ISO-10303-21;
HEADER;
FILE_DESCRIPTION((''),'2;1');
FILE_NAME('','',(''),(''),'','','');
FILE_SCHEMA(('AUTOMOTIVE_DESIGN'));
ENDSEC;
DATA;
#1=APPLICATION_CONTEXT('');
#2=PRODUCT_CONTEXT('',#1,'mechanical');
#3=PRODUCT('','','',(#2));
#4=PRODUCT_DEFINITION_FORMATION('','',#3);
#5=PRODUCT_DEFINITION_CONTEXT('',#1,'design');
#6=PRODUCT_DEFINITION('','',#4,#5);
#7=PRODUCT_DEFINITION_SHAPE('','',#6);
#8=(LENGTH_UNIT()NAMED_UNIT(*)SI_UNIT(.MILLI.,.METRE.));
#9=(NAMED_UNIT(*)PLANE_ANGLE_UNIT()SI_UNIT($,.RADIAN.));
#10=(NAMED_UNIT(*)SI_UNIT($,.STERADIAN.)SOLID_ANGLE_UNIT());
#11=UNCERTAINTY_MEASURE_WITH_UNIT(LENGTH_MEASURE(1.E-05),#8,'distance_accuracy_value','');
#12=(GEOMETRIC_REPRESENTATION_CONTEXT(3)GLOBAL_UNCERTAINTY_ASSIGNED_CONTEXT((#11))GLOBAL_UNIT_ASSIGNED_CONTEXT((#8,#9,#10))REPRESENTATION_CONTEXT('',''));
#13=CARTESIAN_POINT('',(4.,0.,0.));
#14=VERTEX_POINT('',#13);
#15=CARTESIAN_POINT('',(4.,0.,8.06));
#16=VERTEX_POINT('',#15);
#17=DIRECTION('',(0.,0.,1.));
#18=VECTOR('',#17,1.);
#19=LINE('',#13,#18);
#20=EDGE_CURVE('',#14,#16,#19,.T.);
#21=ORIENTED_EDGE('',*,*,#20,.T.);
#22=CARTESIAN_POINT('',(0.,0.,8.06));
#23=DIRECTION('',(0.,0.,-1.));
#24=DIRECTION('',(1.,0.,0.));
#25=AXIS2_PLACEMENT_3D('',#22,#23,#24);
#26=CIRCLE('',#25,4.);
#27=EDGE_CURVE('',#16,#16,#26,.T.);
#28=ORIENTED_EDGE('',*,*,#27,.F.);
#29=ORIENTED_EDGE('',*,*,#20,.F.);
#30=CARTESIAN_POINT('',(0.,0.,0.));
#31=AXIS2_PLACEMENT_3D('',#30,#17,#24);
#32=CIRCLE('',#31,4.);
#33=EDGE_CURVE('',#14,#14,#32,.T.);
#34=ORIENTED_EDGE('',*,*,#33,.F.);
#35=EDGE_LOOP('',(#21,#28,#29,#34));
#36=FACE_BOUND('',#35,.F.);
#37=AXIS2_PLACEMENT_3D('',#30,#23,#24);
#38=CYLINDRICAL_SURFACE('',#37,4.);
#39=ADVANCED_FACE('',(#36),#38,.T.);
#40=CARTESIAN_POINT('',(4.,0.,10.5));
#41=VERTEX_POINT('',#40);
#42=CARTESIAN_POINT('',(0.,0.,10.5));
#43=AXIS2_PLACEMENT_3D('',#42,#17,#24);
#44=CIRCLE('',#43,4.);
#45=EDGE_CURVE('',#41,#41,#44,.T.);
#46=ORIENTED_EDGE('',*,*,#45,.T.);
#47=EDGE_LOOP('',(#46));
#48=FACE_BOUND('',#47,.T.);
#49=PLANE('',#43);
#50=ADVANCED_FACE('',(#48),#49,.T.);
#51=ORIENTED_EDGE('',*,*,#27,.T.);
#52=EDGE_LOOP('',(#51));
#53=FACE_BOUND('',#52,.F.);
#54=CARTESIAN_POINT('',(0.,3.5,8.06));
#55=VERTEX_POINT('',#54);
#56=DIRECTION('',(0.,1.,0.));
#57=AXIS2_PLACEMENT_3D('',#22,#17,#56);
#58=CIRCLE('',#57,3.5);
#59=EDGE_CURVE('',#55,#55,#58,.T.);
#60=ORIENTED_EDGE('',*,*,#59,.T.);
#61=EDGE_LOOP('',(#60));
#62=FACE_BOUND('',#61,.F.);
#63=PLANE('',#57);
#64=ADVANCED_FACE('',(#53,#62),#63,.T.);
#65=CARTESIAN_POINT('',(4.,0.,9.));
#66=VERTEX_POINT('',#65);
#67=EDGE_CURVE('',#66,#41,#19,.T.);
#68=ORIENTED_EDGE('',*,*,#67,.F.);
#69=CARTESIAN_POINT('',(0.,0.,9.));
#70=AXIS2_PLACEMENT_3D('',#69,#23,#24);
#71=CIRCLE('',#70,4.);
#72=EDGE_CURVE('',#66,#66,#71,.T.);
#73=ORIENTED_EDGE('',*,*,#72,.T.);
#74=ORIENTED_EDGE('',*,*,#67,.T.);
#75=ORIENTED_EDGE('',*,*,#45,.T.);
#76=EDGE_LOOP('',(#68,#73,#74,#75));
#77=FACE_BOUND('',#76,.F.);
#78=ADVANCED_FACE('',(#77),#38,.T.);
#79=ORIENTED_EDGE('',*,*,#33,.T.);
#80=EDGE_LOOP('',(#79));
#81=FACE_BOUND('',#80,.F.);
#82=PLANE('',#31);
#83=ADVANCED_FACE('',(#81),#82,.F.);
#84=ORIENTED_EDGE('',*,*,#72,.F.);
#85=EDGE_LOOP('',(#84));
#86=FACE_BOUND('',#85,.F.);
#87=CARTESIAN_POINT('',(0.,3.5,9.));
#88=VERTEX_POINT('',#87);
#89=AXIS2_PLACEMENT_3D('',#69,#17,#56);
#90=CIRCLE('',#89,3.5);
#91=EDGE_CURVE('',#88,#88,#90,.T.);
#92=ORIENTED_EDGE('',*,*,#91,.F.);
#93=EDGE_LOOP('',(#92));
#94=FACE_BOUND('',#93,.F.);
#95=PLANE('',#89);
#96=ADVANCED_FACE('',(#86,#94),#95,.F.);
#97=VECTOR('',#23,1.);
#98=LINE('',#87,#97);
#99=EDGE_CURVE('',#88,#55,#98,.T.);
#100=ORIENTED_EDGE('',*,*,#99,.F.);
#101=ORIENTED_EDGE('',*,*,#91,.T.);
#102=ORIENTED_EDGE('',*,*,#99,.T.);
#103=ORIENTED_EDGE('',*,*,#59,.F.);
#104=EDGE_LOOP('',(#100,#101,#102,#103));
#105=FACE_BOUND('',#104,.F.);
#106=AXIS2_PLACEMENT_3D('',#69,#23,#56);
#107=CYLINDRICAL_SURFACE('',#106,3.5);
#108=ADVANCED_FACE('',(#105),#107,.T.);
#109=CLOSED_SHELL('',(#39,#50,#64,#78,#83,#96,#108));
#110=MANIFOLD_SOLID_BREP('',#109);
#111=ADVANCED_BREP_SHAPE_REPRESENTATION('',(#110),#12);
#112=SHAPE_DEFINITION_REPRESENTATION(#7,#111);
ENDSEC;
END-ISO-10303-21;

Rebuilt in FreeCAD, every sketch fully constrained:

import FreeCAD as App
import Part
import Sketcher

V = App.Vector


def add_polygon(sketch, points):
    """Adds a closed chain of lines whose ends are joined by coincident constraints."""
    first, n = sketch.GeometryCount, len(points)
    for a, b in zip(points, points[1:] + points[:1]):
        sketch.addGeometry(Part.LineSegment(App.Vector(*a, 0), App.Vector(*b, 0)), False)
    for i in range(n):
        sketch.addConstraint(Sketcher.Constraint("Coincident", first + i, 2, first + (i + 1) % n, 1))

doc = App.newDocument("Part")
body = doc.addObject("PartDesign::Body", "Body")

# Sketch on XY plane
sketch1 = doc.addObject("Sketcher::SketchObject", "Sketch")
body.addObject(sketch1)
sketch1.AttachmentSupport = (doc.XY_Plane, [""])
sketch1.MapMode = "FlatFace"
sketch1.addGeometry(Part.Circle(V(0, 0, 0), V(0, 0, 1), 4), False)
sketch1.addConstraint([
    Sketcher.Constraint("Coincident", 0, 3, -1, 1),
    Sketcher.Constraint("Diameter", 0, 8.0),
])
pad1 = doc.addObject("PartDesign::Pad", "Pad")
body.addObject(pad1)
pad1.Profile = sketch1
pad1.Length = 10.5

# Sketch on YZ plane
sketch2 = doc.addObject("Sketcher::SketchObject", "Sketch001")
body.addObject(sketch2)
sketch2.AttachmentSupport = (doc.YZ_Plane, [""])
sketch2.MapMode = "FlatFace"
add_polygon(sketch2, [(4.5, 8.1), (4.5, 9), (3.5, 9), (3.5, 8.1)])  # lines 0-3
sketch2.addConstraint([
    Sketcher.Constraint("Vertical", 0),
    Sketcher.Constraint("Horizontal", 1),
    Sketcher.Constraint("Vertical", 2),
    Sketcher.Constraint("Horizontal", 3),
    Sketcher.Constraint("DistanceX", 1, 2, 1, 1, 1.0),
    Sketcher.Constraint("DistanceY", 0, 1, 0, 2, 0.94),
    Sketcher.Constraint("DistanceY", -1, 1, 0, 2, 9.0),
    Sketcher.Constraint("DistanceX", -1, 1, 0, 2, 4.5),
])
groove = doc.addObject("PartDesign::Groove", "Groove")
body.addObject(groove)
groove.Profile = sketch2
groove.ReferenceAxis = (sketch2, ["V_Axis"])
groove.Angle = 360

doc.recompute()
